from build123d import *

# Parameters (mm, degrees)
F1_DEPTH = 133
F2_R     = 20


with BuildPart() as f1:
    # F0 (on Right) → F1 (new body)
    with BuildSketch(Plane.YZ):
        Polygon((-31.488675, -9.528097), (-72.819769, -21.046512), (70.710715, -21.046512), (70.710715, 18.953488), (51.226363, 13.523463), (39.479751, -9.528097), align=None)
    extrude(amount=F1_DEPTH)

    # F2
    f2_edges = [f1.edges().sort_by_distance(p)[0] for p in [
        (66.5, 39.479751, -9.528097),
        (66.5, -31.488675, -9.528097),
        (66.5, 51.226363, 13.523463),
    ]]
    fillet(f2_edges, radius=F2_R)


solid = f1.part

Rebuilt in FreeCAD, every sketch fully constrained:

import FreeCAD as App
import Part
import Sketcher


def edges_at(feature, points):
    """Names of the edges that pass closest to the given points."""
    edges = feature.Shape.Edges
    near = lambda p: min(range(len(edges)), key=lambda i: edges[i].distToShape(Part.Vertex(*p))[0])
    return sorted({f"Edge{near(p) + 1}" for p in points})

doc = App.newDocument("Part")
params = doc.addObject("Spreadsheet::Sheet", "Params")
for row, (alias, value) in enumerate([
    ("sketch1_height", "40 mm"),
    ("pad1_length", "133 mm"),
    ("fillet_radius", "20 mm"),
], start=1):
    params.set(f"A{row}", alias)
    params.set(f"B{row}", "=" + value)
    params.setAlias(f"B{row}", alias)

body = doc.addObject("PartDesign::Body", "Body")

# Sketch on YZ plane
sketch1 = body.newObject("Sketcher::SketchObject", "Sketch")
sketch1.AttachmentSupport = (doc.getObject("YZ_Plane"), [""])
sketch1.MapMode = "FlatFace"
sketch1.addGeometry([
    Part.LineSegment(App.Vector(-31.488675, -9.528097, 0), App.Vector(-72.819769, -21.046512, 0)),  # 0
    Part.LineSegment(App.Vector(-72.819769, -21.046512, 0), App.Vector(70.710715, -21.046512, 0)),  # 1
    Part.LineSegment(App.Vector(70.710715, -21.046512, 0), App.Vector(70.710715, 18.953488, 0)),  # 2
    Part.LineSegment(App.Vector(70.710715, 18.953488, 0), App.Vector(51.226363, 13.523463, 0)),  # 3
    Part.LineSegment(App.Vector(51.226363, 13.523463, 0), App.Vector(39.479751, -9.528097, 0)),  # 4
    Part.LineSegment(App.Vector(39.479751, -9.528097, 0), App.Vector(-31.488675, -9.528097, 0)),  # 5
], False)
sketch1.addConstraint([
    Sketcher.Constraint("Coincident", 0, 2, 1, 1),
    Sketcher.Constraint("Coincident", 1, 2, 2, 1),
    Sketcher.Constraint("Coincident", 2, 2, 3, 1),
    Sketcher.Constraint("Coincident", 3, 2, 4, 1),
    Sketcher.Constraint("Coincident", 4, 2, 5, 1),
    Sketcher.Constraint("Coincident", 5, 2, 0, 1),
    Sketcher.Constraint("Horizontal", 1),
    Sketcher.Constraint("Vertical", 2),
    Sketcher.Constraint("Horizontal", 5),
    Sketcher.Constraint("Parallel", 0, 3),
    Sketcher.Constraint("DistanceY", 2, 1, 2, 2, 40.0),
    Sketcher.Constraint("Distance", 4, 25.871941),
    Sketcher.Constraint("DistanceX", 1, 1, 1, 2, 143.530484),
    Sketcher.Constraint("DistanceX", 5, 2, 5, 1, 70.968426),
    Sketcher.Constraint("DistanceX", 0, 2, -1, 1, 72.819769),
    Sketcher.Constraint("DistanceY", 0, 2, -1, 1, 21.046512),
    Sketcher.Constraint("DistanceX", -1, 1, 4, 2, 39.479751),
    Sketcher.Constraint("DistanceX", 3, 2, 2, 2, 19.484352),
])
sketch1.setExpression("Constraints[10]", "Params.sketch1_height")
pad1 = body.newObject("PartDesign::Pad", "Pad")
pad1.Profile = sketch1
pad1.setExpression("Length", "Params.pad1_length")
doc.recompute()

fillet = body.newObject("PartDesign::Fillet", "Fillet")
fillet.Base = (pad1, edges_at(pad1, [(66.5, 39.48, -9.528), (66.5, -31.489, -9.528), (66.5, 51.226, 13.523)]))
fillet.setExpression("Radius", "Params.fillet_radius")

doc.recompute()
